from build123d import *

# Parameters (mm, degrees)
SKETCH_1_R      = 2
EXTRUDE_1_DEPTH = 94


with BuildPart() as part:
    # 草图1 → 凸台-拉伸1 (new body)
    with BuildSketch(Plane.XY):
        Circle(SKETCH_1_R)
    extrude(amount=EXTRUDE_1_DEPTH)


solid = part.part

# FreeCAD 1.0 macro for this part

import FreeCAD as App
import Part
import Sketcher
from FreeCAD import Vector
Q = App.Units.Quantity

doc = App.newDocument("Part")
params = doc.addObject("Spreadsheet::Sheet", "Params")
for row, (alias, value) in enumerate([
    ("sketch1_diameter", "4 mm"),
    ("pad1_length", "94 mm"),
], start=1):
    params.set(f"A{row}", alias)
    params.set(f"B{row}", "=" + value)
    params.setAlias(f"B{row}", alias)

body = doc.addObject("PartDesign::Body", "Body")

# Sketch on XY plane
sketch1 = body.newObject("Sketcher::SketchObject", "Sketch")
sketch1.AttachmentSupport = (doc.getObject("XY_Plane"), [""])
sketch1.MapMode = "FlatFace"
sketch1.addGeometry(Part.Circle(Vector(0, 0, 0), Vector(0, 0, 1), 2), False)
sketch1.addConstraint([
    Sketcher.Constraint("Coincident", 0, 3, -1, 1),
    Sketcher.Constraint("Diameter", 0, Q("4 mm")),
])
sketch1.setExpression("Constraints[1]", "Params.sketch1_diameter")
pad1 = body.newObject("PartDesign::Pad", "Pad")
pad1.Profile = sketch1
pad1.setExpression("Length", "Params.pad1_length")

doc.recompute()
